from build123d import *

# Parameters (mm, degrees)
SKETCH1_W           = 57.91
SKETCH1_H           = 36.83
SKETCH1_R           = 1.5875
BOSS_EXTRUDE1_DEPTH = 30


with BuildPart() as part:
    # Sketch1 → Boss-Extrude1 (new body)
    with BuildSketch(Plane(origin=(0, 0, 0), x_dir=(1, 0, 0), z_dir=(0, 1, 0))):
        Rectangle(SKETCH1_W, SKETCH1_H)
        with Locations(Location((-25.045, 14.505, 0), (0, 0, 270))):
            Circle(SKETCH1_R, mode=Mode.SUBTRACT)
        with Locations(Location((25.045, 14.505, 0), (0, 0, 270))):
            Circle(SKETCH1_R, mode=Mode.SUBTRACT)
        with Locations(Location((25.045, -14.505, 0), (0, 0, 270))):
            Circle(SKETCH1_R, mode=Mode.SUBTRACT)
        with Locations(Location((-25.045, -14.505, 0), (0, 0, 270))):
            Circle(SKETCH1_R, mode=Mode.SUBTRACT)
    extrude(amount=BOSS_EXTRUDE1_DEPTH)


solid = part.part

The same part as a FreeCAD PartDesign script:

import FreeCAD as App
import Part
import Sketcher
from FreeCAD import Vector
Q = App.Units.Quantity


def add_polygon(sketch, points):
    """Adds a closed chain of lines whose ends are joined by coincident constraints."""
    first, n = sketch.GeometryCount, len(points)
    for a, b in zip(points, points[1:] + points[:1]):
        sketch.addGeometry(Part.LineSegment(App.Vector(*a, 0), App.Vector(*b, 0)), False)
    for i in range(n):
        sketch.addConstraint(Sketcher.Constraint("Coincident", first + i, 2, first + (i + 1) % n, 1))

doc = App.newDocument("Part")
params = doc.addObject("Spreadsheet::Sheet", "Params")
for row, (alias, value) in enumerate([
    ("sketch1_diameter", "0.125 in"),
    ("sketch1_height", "1.45 in"),
    ("pad1_length", "30 mm"),
], start=1):
    params.set(f"A{row}", alias)
    params.set(f"B{row}", "=" + value)
    params.setAlias(f"B{row}", alias)

body = doc.addObject("PartDesign::Body", "Body")

sketch1 = body.newObject("Sketcher::SketchObject", "Sketch")
sketch1.AttachmentSupport = (doc.getObject("XZ_Plane"), [""])
sketch1.MapMode = "FlatFace"
add_polygon(sketch1, [(-28.955, -18.415), (-28.955, 18.415), (28.955, 18.415), (28.955, -18.415)])
sketch1.addGeometry(Part.Circle(Vector(-25.045, 14.505, 0), Vector(0, 0, 1), 1.5875), False)
sketch1.addGeometry(Part.Circle(Vector(25.045, 14.505, 0), Vector(0, 0, 1), 1.5875), False)
sketch1.addGeometry(Part.Circle(Vector(-25.045, -14.505, 0), Vector(0, 0, 1), 1.5875), False)
sketch1.addGeometry(Part.Circle(Vector(25.045, -14.505, 0), Vector(0, 0, 1), 1.5875), False)
sketch1.addConstraint(Sketcher.Constraint("Vertical", 0))
sketch1.addConstraint(Sketcher.Constraint("Horizontal", 1))
sketch1.addConstraint(Sketcher.Constraint("Vertical", 2))
sketch1.addConstraint(Sketcher.Constraint("Horizontal", 3))
sketch1.addConstraint(Sketcher.Constraint("Equal", 4, 5))
sketch1.addConstraint(Sketcher.Constraint("Equal", 5, 6))
sketch1.addConstraint(Sketcher.Constraint("Equal", 6, 7))
sketch1.addConstraint(Sketcher.Constraint("Symmetric", 5, 3, 6, 3, -1, 1))
sketch1.addConstraint(Sketcher.Constraint("Symmetric", 4, 3, 7, 3, -1, 1))
sketch1.addConstraint(Sketcher.Constraint("Symmetric", 0, 2, 2, 2, -1, 1))
sketch1.addConstraint(Sketcher.Constraint("Symmetric", 4, 3, 5, 3, -2))
sketch1.addConstraint(Sketcher.Constraint("Diameter", 4, Q("0.125 in")))
sketch1.addConstraint(Sketcher.Constraint("DistanceY", 0, 1, 0, 2, Q("1.45 in")))
sketch1.addConstraint(Sketcher.Constraint("DistanceX", 1, 1, 1, 2, 57.91))
sketch1.addConstraint(Sketcher.Constraint("DistanceX", 4, 3, -1, 1, 25.045))
sketch1.addConstraint(Sketcher.Constraint("DistanceY", -1, 1, 4, 3, 14.505))
sketch1.setExpression("Constraints[15]", "Params.sketch1_diameter")
sketch1.setExpression("Constraints[16]", "Params.sketch1_height")
pad1 = body.newObject("PartDesign::Pad", "Pad")
pad1.Profile = sketch1
pad1.setExpression("Length", "Params.pad1_length")
pad1.Reversed = True

doc.recompute()
